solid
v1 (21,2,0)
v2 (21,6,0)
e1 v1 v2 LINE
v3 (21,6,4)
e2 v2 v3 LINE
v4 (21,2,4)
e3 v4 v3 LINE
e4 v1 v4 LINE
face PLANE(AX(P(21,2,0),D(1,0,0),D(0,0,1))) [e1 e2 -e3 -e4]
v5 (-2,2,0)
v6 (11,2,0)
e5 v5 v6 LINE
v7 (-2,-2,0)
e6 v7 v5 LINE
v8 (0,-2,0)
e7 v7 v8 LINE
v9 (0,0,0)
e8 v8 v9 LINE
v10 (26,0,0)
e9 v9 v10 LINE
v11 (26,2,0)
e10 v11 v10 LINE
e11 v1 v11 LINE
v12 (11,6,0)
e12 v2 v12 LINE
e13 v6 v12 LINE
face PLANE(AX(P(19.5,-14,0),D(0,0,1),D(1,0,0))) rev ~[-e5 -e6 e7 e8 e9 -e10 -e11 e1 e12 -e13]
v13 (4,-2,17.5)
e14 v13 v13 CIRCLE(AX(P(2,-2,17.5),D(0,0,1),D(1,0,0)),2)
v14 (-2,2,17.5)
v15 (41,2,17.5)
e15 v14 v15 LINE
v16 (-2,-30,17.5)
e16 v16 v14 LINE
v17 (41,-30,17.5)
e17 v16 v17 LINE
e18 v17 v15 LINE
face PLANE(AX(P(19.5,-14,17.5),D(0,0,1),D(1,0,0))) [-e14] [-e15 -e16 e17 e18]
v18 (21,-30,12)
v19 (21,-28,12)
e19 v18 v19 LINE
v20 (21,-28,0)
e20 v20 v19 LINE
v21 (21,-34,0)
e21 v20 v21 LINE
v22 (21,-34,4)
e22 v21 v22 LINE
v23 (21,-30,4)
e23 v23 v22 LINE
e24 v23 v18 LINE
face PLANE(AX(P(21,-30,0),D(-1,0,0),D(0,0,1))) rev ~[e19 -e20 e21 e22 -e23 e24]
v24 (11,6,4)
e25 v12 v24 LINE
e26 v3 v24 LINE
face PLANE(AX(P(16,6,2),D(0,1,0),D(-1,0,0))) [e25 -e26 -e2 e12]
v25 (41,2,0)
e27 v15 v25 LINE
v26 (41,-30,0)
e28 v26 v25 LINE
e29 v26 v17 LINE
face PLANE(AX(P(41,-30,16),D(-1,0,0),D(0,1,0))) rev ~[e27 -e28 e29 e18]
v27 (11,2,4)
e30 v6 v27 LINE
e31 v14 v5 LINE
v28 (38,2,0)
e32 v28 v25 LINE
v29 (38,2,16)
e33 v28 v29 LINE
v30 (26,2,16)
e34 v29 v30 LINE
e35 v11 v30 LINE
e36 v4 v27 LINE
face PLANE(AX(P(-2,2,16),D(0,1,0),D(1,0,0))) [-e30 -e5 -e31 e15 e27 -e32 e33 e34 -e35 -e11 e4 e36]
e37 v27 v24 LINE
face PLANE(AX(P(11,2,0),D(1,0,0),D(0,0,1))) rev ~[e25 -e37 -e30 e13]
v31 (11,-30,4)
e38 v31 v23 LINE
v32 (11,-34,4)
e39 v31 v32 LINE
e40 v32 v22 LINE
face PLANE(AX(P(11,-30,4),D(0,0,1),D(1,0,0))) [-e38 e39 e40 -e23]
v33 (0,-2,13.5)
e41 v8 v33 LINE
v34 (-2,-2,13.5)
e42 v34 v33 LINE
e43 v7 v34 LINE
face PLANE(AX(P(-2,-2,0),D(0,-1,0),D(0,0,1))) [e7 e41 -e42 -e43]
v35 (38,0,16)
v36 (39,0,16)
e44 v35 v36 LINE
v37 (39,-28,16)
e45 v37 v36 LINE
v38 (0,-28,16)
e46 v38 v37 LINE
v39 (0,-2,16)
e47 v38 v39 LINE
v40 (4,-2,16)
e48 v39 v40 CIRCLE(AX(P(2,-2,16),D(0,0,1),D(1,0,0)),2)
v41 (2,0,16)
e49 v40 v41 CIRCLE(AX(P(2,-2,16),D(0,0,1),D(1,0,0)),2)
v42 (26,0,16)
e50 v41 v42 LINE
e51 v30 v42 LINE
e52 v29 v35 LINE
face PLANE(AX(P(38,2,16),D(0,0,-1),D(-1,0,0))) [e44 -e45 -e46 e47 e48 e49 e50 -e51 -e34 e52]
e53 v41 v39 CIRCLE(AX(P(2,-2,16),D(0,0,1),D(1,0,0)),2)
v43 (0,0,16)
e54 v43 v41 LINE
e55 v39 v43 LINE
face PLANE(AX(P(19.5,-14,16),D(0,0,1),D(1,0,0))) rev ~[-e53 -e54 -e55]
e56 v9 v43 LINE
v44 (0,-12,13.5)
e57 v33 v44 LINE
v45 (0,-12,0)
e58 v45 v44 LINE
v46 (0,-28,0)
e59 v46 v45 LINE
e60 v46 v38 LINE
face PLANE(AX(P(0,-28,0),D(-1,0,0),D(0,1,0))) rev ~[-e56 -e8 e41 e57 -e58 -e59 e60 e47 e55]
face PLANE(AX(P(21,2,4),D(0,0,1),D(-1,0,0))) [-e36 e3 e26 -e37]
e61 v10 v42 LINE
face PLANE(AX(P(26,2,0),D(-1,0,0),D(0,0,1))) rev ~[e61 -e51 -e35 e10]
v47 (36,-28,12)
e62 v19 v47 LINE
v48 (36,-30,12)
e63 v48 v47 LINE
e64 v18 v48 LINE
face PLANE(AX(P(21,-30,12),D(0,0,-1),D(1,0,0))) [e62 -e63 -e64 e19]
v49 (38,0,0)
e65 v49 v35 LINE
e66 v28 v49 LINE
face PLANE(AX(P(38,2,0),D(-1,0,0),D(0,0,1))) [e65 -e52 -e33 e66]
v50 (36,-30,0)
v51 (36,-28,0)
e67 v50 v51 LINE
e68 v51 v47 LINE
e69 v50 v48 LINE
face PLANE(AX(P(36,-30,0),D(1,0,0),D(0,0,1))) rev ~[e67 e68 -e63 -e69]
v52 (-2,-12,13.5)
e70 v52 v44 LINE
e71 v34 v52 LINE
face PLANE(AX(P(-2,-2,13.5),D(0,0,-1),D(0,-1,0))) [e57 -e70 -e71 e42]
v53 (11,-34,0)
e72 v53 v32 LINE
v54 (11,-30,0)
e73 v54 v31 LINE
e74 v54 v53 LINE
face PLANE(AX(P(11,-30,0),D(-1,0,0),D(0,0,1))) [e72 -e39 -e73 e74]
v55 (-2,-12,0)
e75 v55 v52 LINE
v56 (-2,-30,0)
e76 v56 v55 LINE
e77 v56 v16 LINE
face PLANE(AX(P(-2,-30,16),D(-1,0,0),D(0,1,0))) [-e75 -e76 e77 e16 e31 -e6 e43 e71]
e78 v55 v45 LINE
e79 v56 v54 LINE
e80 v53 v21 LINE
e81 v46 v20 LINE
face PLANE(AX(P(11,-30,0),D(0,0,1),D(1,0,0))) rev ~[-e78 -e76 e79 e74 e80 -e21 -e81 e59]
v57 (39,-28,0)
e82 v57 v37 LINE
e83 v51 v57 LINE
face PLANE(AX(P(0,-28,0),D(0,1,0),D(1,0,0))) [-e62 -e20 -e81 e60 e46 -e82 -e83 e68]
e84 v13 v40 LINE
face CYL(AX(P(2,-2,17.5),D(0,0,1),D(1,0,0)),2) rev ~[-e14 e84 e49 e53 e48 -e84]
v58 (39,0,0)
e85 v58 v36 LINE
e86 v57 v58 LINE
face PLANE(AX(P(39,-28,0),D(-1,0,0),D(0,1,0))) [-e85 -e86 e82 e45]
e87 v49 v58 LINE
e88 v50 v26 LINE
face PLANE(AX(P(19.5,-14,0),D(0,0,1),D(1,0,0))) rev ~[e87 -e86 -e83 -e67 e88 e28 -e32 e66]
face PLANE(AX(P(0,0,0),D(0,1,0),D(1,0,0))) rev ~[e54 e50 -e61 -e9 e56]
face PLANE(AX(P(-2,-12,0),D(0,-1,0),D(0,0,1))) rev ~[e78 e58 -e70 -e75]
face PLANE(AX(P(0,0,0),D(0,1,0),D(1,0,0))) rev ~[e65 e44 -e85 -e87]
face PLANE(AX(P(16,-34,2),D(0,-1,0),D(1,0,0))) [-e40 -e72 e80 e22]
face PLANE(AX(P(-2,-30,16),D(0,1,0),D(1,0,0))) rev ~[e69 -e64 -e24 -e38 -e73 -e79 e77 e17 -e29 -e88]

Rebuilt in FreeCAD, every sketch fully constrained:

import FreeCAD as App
import Part
import Sketcher

V = App.Vector


def add_polygon(sketch, points):
    """Adds a closed chain of lines whose ends are joined by coincident constraints."""
    first, n = sketch.GeometryCount, len(points)
    for a, b in zip(points, points[1:] + points[:1]):
        sketch.addGeometry(Part.LineSegment(App.Vector(*a, 0), App.Vector(*b, 0)), False)
    for i in range(n):
        sketch.addConstraint(Sketcher.Constraint("Coincident", first + i, 2, first + (i + 1) % n, 1))

doc = App.newDocument("Part")
body = doc.addObject("PartDesign::Body", "Body")

# Sketch on XY plane
sketch1 = doc.addObject("Sketcher::SketchObject", "Sketch")
body.addObject(sketch1)
sketch1.AttachmentSupport = (doc.XY_Plane, [""])
sketch1.MapMode = "FlatFace"
add_polygon(sketch1, [(-2, 2), (-2, -30), (41, -30), (41, 2)])  # lines 0-3
add_polygon(sketch1, [(39, -28), (0, -28), (0, 0), (39, 0)])  # lines 4-7
sketch1.addConstraint([
    Sketcher.Constraint("Vertical", 0),
    Sketcher.Constraint("Horizontal", 1),
    Sketcher.Constraint("Vertical", 2),
    Sketcher.Constraint("Horizontal", 3),
    Sketcher.Constraint("Horizontal", 4),
    Sketcher.Constraint("Vertical", 5),
    Sketcher.Constraint("Horizontal", 6),
    Sketcher.Constraint("Vertical", 7),
    Sketcher.Constraint("Coincident", 5, 2, -1, 1),
    Sketcher.Constraint("DistanceX", 1, 1, 1, 2, 43.0),
    Sketcher.Constraint("DistanceX", 4, 2, 4, 1, 39.0),
    Sketcher.Constraint("DistanceY", 0, 2, 0, 1, 32.0),
    Sketcher.Constraint("DistanceY", 5, 1, 5, 2, 28.0),
    Sketcher.Constraint("DistanceX", 0, 2, -1, 1, 2.0),
    Sketcher.Constraint("DistanceY", 0, 2, -1, 1, 30.0),
])
pad1 = doc.addObject("PartDesign::Pad", "Pad")
body.addObject(pad1)
pad1.Profile = sketch1
pad1.Length = 16

# Sketch on XY plane
sketch2 = doc.addObject("Sketcher::SketchObject", "Sketch001")
body.addObject(sketch2)
sketch2.AttachmentSupport = (doc.XY_Plane, [""])
sketch2.MapMode = "FlatFace"
sketch2.AttachmentOffset = App.Placement(V(0, 0, 16), App.Rotation())
add_polygon(sketch2, [(-2, 2), (-2, -30), (41, -30), (41, 2)])  # lines 0-3
sketch2.addConstraint([
    Sketcher.Constraint("Vertical", 0),
    Sketcher.Constraint("Horizontal", 1),
    Sketcher.Constraint("Vertical", 2),
    Sketcher.Constraint("Horizontal", 3),
    Sketcher.Constraint("DistanceX", 1, 1, 1, 2, 43.0),
    Sketcher.Constraint("DistanceY", 0, 2, 0, 1, 32.0),
    Sketcher.Constraint("DistanceX", 0, 2, -1, 1, 2.0),
    Sketcher.Constraint("DistanceY", 0, 2, -1, 1, 30.0),
])
pad2 = doc.addObject("PartDesign::Pad", "Pad001")
body.addObject(pad2)
pad2.Profile = sketch2
pad2.Length = 1.5

# Sketch on YZ plane
sketch3 = doc.addObject("Sketcher::SketchObject", "Sketch002")
body.addObject(sketch3)
sketch3.AttachmentSupport = (doc.YZ_Plane, [""])
sketch3.MapMode = "FlatFace"
sketch3.AttachmentOffset = App.Placement(V(0, 0, -2), App.Rotation())
add_polygon(sketch3, [(-2, 14), (-2, 0), (-12, 0), (-12, 14)])  # lines 0-3
sketch3.addConstraint([
    Sketcher.Constraint("Vertical", 0),
    Sketcher.Constraint("Horizontal", 1),
    Sketcher.Constraint("Vertical", 2),
    Sketcher.Constraint("Horizontal", 3),
    Sketcher.Constraint("PointOnObject", 0, 2, -1),
    Sketcher.Constraint("DistanceX", 1, 2, 1, 1, 10.0),
    Sketcher.Constraint("DistanceY", 0, 2, 0, 1, 13.5),
    Sketcher.Constraint("DistanceX", 0, 2, -1, 1, 2.0),
])
pocket1 = doc.addObject("PartDesign::Pocket", "Pocket")
body.addObject(pocket1)
pocket1.Profile = sketch3
pocket1.Length = 2
pocket1.Reversed = True

# Sketch on XY plane
sketch4 = doc.addObject("Sketcher::SketchObject", "Sketch003")
body.addObject(sketch4)
sketch4.AttachmentSupport = (doc.XY_Plane, [""])
sketch4.MapMode = "FlatFace"
sketch4.AttachmentOffset = App.Placement(V(0, 0, 17.5), App.Rotation())
sketch4.addGeometry(Part.Circle(V(2, -2, 0), V(0, 0, 1), 2), False)
sketch4.addConstraint([
    Sketcher.Constraint("Diameter", 0, 4.0),
    Sketcher.Constraint("DistanceX", -1, 1, 0, 3, 2.0),
    Sketcher.Constraint("DistanceY", 0, 3, -1, 1, 2.0),
])
pocket2 = doc.addObject("PartDesign::Pocket", "Pocket001")
body.addObject(pocket2)
pocket2.Profile = sketch4
pocket2.Type = "ThroughAll"

# Sketch on XZ plane
sketch5 = doc.addObject("Sketcher::SketchObject", "Sketch004")
body.addObject(sketch5)
sketch5.AttachmentSupport = (doc.XZ_Plane, [""])
sketch5.MapMode = "FlatFace"
sketch5.AttachmentOffset = App.Placement(V(0, 0, -2), App.Rotation())
add_polygon(sketch5, [(38, 16), (38, 0), (26, 0), (26, 16)])  # lines 0-3
sketch5.addConstraint([
    Sketcher.Constraint("Vertical", 0),
    Sketcher.Constraint("Horizontal", 1),
    Sketcher.Constraint("Vertical", 2),
    Sketcher.Constraint("Horizontal", 3),
    Sketcher.Constraint("PointOnObject", 0, 2, -1),
    Sketcher.Constraint("DistanceX", 1, 2, 1, 1, 12.0),
    Sketcher.Constraint("DistanceY", 0, 2, 0, 1, 16.0),
    Sketcher.Constraint("DistanceX", -1, 1, 0, 2, 38.0),
])
pocket3 = doc.addObject("PartDesign::Pocket", "Pocket002")
body.addObject(pocket3)
pocket3.Profile = sketch5
pocket3.Length = 2
pocket3.Reversed = True

# Sketch on XZ plane
sketch6 = doc.addObject("Sketcher::SketchObject", "Sketch005")
body.addObject(sketch6)
sketch6.AttachmentSupport = (doc.XZ_Plane, [""])
sketch6.MapMode = "FlatFace"
sketch6.AttachmentOffset = App.Placement(V(0, 0, 30), App.Rotation())
add_polygon(sketch6, [(21, 12), (21, 0), (36, 0), (36, 12)])  # lines 0-3
sketch6.addConstraint([
    Sketcher.Constraint("Vertical", 0),
    Sketcher.Constraint("Horizontal", 1),
    Sketcher.Constraint("Vertical", 2),
    Sketcher.Constraint("Horizontal", 3),
    Sketcher.Constraint("PointOnObject", 0, 2, -1),
    Sketcher.Constraint("DistanceX", 1, 1, 1, 2, 15.0),
    Sketcher.Constraint("DistanceY", 0, 2, 0, 1, 12.0),
    Sketcher.Constraint("DistanceX", -1, 1, 0, 2, 21.0),
])
pocket4 = doc.addObject("PartDesign::Pocket", "Pocket003")
body.addObject(pocket4)
pocket4.Profile = sketch6
pocket4.Length = 2

# Sketch on XZ plane
sketch7 = doc.addObject("Sketcher::SketchObject", "Sketch006")
body.addObject(sketch7)
sketch7.AttachmentSupport = (doc.XZ_Plane, [""])
sketch7.MapMode = "FlatFace"
sketch7.AttachmentOffset = App.Placement(V(0, 0, 30), App.Rotation())
add_polygon(sketch7, [(11, 4), (11, 0), (21, 0), (21, 4)])  # lines 0-3
sketch7.addConstraint([
    Sketcher.Constraint("Vertical", 0),
    Sketcher.Constraint("Horizontal", 1),
    Sketcher.Constraint("Vertical", 2),
    Sketcher.Constraint("Horizontal", 3),
    Sketcher.Constraint("PointOnObject", 0, 2, -1),
    Sketcher.Constraint("DistanceX", 1, 1, 1, 2, 10.0),
    Sketcher.Constraint("DistanceY", 0, 2, 0, 1, 4.0),
    Sketcher.Constraint("DistanceX", -1, 1, 0, 2, 11.0),
])
pad3 = doc.addObject("PartDesign::Pad", "Pad002")
body.addObject(pad3)
pad3.Profile = sketch7
pad3.Length = 4

# Sketch on XZ plane
sketch8 = doc.addObject("Sketcher::SketchObject", "Sketch007")
body.addObject(sketch8)
sketch8.AttachmentSupport = (doc.XZ_Plane, [""])
sketch8.MapMode = "FlatFace"
sketch8.AttachmentOffset = App.Placement(V(0, 0, -2), App.Rotation())
add_polygon(sketch8, [(21, 4), (21, 0), (11, 0), (11, 4)])  # lines 0-3
sketch8.addConstraint([
    Sketcher.Constraint("Vertical", 0),
    Sketcher.Constraint("Horizontal", 1),
    Sketcher.Constraint("Vertical", 2),
    Sketcher.Constraint("Horizontal", 3),
    Sketcher.Constraint("PointOnObject", 0, 2, -1),
    Sketcher.Constraint("DistanceX", 1, 2, 1, 1, 10.0),
    Sketcher.Constraint("DistanceY", 0, 2, 0, 1, 4.0),
    Sketcher.Constraint("DistanceX", -1, 1, 0, 2, 21.0),
])
pad4 = doc.addObject("PartDesign::Pad", "Pad003")
body.addObject(pad4)
pad4.Profile = sketch8
pad4.Length = 4
pad4.Reversed = True

doc.recompute()
